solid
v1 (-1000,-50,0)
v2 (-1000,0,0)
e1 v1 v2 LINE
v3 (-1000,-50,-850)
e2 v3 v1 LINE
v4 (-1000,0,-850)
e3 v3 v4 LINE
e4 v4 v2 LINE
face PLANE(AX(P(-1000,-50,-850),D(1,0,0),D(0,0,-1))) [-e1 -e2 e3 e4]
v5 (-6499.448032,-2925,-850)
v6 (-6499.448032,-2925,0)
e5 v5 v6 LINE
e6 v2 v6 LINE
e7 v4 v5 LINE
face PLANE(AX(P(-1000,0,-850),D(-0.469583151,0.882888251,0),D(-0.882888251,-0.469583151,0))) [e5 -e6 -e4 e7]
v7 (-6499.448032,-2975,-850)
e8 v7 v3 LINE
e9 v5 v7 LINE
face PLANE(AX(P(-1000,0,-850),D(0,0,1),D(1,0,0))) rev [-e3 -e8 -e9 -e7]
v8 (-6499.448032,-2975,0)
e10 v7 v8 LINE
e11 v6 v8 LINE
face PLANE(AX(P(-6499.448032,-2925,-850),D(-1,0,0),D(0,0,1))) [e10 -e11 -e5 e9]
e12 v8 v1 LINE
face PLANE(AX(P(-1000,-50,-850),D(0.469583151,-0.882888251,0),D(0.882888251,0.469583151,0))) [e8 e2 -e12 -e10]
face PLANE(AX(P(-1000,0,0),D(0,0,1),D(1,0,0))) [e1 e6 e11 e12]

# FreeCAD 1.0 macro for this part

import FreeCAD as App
import Part
import Sketcher

V = App.Vector
Q = App.Units.Quantity


def add_polygon(sketch, points):
    """Adds a closed chain of lines whose ends are joined by coincident constraints."""
    first, n = sketch.GeometryCount, len(points)
    for a, b in zip(points, points[1:] + points[:1]):
        sketch.addGeometry(Part.LineSegment(App.Vector(*a, 0), App.Vector(*b, 0)), False)
    for i in range(n):
        sketch.addConstraint(Sketcher.Constraint("Coincident", first + i, 2, first + (i + 1) % n, 1))

doc = App.newDocument("Part")
body = doc.addObject("PartDesign::Body", "Body")

# Sketch on XY plane
sketch1 = doc.addObject("Sketcher::SketchObject", "Sketch")
body.addObject(sketch1)
sketch1.AttachmentSupport = (doc.XY_Plane, [""])
sketch1.MapMode = "FlatFace"
add_polygon(sketch1, [(-6499.448032, -2975), (-1000, -50), (-1000, 0), (-6499.448032, -2925)])  # lines 0-3
sketch1.addConstraint(Sketcher.Constraint("Vertical", 1))
sketch1.addConstraint(Sketcher.Constraint("Vertical", 3))
sketch1.addConstraint(Sketcher.Constraint("PointOnObject", 1, 2, -1))
sketch1.addConstraint(Sketcher.Constraint("Parallel", 0, 2))
sketch1.addConstraint(Sketcher.Constraint("DistanceY", 1, 1, 1, 2, Q("50 mm")))
sketch1.addConstraint(Sketcher.Constraint("DistanceX", 0, 2, -1, 1, Q("1000 mm")))
sketch1.addConstraint(Sketcher.Constraint("DistanceY", 2, 2, -1, 1, Q("2925 mm")))
sketch1.addConstraint(Sketcher.Constraint("Distance", 0, Q("6228.928773 mm")))
pad1 = doc.addObject("PartDesign::Pad", "Pad")
body.addObject(pad1)
pad1.Profile = sketch1
pad1.Length = 850
pad1.Reversed = True

doc.recompute()
